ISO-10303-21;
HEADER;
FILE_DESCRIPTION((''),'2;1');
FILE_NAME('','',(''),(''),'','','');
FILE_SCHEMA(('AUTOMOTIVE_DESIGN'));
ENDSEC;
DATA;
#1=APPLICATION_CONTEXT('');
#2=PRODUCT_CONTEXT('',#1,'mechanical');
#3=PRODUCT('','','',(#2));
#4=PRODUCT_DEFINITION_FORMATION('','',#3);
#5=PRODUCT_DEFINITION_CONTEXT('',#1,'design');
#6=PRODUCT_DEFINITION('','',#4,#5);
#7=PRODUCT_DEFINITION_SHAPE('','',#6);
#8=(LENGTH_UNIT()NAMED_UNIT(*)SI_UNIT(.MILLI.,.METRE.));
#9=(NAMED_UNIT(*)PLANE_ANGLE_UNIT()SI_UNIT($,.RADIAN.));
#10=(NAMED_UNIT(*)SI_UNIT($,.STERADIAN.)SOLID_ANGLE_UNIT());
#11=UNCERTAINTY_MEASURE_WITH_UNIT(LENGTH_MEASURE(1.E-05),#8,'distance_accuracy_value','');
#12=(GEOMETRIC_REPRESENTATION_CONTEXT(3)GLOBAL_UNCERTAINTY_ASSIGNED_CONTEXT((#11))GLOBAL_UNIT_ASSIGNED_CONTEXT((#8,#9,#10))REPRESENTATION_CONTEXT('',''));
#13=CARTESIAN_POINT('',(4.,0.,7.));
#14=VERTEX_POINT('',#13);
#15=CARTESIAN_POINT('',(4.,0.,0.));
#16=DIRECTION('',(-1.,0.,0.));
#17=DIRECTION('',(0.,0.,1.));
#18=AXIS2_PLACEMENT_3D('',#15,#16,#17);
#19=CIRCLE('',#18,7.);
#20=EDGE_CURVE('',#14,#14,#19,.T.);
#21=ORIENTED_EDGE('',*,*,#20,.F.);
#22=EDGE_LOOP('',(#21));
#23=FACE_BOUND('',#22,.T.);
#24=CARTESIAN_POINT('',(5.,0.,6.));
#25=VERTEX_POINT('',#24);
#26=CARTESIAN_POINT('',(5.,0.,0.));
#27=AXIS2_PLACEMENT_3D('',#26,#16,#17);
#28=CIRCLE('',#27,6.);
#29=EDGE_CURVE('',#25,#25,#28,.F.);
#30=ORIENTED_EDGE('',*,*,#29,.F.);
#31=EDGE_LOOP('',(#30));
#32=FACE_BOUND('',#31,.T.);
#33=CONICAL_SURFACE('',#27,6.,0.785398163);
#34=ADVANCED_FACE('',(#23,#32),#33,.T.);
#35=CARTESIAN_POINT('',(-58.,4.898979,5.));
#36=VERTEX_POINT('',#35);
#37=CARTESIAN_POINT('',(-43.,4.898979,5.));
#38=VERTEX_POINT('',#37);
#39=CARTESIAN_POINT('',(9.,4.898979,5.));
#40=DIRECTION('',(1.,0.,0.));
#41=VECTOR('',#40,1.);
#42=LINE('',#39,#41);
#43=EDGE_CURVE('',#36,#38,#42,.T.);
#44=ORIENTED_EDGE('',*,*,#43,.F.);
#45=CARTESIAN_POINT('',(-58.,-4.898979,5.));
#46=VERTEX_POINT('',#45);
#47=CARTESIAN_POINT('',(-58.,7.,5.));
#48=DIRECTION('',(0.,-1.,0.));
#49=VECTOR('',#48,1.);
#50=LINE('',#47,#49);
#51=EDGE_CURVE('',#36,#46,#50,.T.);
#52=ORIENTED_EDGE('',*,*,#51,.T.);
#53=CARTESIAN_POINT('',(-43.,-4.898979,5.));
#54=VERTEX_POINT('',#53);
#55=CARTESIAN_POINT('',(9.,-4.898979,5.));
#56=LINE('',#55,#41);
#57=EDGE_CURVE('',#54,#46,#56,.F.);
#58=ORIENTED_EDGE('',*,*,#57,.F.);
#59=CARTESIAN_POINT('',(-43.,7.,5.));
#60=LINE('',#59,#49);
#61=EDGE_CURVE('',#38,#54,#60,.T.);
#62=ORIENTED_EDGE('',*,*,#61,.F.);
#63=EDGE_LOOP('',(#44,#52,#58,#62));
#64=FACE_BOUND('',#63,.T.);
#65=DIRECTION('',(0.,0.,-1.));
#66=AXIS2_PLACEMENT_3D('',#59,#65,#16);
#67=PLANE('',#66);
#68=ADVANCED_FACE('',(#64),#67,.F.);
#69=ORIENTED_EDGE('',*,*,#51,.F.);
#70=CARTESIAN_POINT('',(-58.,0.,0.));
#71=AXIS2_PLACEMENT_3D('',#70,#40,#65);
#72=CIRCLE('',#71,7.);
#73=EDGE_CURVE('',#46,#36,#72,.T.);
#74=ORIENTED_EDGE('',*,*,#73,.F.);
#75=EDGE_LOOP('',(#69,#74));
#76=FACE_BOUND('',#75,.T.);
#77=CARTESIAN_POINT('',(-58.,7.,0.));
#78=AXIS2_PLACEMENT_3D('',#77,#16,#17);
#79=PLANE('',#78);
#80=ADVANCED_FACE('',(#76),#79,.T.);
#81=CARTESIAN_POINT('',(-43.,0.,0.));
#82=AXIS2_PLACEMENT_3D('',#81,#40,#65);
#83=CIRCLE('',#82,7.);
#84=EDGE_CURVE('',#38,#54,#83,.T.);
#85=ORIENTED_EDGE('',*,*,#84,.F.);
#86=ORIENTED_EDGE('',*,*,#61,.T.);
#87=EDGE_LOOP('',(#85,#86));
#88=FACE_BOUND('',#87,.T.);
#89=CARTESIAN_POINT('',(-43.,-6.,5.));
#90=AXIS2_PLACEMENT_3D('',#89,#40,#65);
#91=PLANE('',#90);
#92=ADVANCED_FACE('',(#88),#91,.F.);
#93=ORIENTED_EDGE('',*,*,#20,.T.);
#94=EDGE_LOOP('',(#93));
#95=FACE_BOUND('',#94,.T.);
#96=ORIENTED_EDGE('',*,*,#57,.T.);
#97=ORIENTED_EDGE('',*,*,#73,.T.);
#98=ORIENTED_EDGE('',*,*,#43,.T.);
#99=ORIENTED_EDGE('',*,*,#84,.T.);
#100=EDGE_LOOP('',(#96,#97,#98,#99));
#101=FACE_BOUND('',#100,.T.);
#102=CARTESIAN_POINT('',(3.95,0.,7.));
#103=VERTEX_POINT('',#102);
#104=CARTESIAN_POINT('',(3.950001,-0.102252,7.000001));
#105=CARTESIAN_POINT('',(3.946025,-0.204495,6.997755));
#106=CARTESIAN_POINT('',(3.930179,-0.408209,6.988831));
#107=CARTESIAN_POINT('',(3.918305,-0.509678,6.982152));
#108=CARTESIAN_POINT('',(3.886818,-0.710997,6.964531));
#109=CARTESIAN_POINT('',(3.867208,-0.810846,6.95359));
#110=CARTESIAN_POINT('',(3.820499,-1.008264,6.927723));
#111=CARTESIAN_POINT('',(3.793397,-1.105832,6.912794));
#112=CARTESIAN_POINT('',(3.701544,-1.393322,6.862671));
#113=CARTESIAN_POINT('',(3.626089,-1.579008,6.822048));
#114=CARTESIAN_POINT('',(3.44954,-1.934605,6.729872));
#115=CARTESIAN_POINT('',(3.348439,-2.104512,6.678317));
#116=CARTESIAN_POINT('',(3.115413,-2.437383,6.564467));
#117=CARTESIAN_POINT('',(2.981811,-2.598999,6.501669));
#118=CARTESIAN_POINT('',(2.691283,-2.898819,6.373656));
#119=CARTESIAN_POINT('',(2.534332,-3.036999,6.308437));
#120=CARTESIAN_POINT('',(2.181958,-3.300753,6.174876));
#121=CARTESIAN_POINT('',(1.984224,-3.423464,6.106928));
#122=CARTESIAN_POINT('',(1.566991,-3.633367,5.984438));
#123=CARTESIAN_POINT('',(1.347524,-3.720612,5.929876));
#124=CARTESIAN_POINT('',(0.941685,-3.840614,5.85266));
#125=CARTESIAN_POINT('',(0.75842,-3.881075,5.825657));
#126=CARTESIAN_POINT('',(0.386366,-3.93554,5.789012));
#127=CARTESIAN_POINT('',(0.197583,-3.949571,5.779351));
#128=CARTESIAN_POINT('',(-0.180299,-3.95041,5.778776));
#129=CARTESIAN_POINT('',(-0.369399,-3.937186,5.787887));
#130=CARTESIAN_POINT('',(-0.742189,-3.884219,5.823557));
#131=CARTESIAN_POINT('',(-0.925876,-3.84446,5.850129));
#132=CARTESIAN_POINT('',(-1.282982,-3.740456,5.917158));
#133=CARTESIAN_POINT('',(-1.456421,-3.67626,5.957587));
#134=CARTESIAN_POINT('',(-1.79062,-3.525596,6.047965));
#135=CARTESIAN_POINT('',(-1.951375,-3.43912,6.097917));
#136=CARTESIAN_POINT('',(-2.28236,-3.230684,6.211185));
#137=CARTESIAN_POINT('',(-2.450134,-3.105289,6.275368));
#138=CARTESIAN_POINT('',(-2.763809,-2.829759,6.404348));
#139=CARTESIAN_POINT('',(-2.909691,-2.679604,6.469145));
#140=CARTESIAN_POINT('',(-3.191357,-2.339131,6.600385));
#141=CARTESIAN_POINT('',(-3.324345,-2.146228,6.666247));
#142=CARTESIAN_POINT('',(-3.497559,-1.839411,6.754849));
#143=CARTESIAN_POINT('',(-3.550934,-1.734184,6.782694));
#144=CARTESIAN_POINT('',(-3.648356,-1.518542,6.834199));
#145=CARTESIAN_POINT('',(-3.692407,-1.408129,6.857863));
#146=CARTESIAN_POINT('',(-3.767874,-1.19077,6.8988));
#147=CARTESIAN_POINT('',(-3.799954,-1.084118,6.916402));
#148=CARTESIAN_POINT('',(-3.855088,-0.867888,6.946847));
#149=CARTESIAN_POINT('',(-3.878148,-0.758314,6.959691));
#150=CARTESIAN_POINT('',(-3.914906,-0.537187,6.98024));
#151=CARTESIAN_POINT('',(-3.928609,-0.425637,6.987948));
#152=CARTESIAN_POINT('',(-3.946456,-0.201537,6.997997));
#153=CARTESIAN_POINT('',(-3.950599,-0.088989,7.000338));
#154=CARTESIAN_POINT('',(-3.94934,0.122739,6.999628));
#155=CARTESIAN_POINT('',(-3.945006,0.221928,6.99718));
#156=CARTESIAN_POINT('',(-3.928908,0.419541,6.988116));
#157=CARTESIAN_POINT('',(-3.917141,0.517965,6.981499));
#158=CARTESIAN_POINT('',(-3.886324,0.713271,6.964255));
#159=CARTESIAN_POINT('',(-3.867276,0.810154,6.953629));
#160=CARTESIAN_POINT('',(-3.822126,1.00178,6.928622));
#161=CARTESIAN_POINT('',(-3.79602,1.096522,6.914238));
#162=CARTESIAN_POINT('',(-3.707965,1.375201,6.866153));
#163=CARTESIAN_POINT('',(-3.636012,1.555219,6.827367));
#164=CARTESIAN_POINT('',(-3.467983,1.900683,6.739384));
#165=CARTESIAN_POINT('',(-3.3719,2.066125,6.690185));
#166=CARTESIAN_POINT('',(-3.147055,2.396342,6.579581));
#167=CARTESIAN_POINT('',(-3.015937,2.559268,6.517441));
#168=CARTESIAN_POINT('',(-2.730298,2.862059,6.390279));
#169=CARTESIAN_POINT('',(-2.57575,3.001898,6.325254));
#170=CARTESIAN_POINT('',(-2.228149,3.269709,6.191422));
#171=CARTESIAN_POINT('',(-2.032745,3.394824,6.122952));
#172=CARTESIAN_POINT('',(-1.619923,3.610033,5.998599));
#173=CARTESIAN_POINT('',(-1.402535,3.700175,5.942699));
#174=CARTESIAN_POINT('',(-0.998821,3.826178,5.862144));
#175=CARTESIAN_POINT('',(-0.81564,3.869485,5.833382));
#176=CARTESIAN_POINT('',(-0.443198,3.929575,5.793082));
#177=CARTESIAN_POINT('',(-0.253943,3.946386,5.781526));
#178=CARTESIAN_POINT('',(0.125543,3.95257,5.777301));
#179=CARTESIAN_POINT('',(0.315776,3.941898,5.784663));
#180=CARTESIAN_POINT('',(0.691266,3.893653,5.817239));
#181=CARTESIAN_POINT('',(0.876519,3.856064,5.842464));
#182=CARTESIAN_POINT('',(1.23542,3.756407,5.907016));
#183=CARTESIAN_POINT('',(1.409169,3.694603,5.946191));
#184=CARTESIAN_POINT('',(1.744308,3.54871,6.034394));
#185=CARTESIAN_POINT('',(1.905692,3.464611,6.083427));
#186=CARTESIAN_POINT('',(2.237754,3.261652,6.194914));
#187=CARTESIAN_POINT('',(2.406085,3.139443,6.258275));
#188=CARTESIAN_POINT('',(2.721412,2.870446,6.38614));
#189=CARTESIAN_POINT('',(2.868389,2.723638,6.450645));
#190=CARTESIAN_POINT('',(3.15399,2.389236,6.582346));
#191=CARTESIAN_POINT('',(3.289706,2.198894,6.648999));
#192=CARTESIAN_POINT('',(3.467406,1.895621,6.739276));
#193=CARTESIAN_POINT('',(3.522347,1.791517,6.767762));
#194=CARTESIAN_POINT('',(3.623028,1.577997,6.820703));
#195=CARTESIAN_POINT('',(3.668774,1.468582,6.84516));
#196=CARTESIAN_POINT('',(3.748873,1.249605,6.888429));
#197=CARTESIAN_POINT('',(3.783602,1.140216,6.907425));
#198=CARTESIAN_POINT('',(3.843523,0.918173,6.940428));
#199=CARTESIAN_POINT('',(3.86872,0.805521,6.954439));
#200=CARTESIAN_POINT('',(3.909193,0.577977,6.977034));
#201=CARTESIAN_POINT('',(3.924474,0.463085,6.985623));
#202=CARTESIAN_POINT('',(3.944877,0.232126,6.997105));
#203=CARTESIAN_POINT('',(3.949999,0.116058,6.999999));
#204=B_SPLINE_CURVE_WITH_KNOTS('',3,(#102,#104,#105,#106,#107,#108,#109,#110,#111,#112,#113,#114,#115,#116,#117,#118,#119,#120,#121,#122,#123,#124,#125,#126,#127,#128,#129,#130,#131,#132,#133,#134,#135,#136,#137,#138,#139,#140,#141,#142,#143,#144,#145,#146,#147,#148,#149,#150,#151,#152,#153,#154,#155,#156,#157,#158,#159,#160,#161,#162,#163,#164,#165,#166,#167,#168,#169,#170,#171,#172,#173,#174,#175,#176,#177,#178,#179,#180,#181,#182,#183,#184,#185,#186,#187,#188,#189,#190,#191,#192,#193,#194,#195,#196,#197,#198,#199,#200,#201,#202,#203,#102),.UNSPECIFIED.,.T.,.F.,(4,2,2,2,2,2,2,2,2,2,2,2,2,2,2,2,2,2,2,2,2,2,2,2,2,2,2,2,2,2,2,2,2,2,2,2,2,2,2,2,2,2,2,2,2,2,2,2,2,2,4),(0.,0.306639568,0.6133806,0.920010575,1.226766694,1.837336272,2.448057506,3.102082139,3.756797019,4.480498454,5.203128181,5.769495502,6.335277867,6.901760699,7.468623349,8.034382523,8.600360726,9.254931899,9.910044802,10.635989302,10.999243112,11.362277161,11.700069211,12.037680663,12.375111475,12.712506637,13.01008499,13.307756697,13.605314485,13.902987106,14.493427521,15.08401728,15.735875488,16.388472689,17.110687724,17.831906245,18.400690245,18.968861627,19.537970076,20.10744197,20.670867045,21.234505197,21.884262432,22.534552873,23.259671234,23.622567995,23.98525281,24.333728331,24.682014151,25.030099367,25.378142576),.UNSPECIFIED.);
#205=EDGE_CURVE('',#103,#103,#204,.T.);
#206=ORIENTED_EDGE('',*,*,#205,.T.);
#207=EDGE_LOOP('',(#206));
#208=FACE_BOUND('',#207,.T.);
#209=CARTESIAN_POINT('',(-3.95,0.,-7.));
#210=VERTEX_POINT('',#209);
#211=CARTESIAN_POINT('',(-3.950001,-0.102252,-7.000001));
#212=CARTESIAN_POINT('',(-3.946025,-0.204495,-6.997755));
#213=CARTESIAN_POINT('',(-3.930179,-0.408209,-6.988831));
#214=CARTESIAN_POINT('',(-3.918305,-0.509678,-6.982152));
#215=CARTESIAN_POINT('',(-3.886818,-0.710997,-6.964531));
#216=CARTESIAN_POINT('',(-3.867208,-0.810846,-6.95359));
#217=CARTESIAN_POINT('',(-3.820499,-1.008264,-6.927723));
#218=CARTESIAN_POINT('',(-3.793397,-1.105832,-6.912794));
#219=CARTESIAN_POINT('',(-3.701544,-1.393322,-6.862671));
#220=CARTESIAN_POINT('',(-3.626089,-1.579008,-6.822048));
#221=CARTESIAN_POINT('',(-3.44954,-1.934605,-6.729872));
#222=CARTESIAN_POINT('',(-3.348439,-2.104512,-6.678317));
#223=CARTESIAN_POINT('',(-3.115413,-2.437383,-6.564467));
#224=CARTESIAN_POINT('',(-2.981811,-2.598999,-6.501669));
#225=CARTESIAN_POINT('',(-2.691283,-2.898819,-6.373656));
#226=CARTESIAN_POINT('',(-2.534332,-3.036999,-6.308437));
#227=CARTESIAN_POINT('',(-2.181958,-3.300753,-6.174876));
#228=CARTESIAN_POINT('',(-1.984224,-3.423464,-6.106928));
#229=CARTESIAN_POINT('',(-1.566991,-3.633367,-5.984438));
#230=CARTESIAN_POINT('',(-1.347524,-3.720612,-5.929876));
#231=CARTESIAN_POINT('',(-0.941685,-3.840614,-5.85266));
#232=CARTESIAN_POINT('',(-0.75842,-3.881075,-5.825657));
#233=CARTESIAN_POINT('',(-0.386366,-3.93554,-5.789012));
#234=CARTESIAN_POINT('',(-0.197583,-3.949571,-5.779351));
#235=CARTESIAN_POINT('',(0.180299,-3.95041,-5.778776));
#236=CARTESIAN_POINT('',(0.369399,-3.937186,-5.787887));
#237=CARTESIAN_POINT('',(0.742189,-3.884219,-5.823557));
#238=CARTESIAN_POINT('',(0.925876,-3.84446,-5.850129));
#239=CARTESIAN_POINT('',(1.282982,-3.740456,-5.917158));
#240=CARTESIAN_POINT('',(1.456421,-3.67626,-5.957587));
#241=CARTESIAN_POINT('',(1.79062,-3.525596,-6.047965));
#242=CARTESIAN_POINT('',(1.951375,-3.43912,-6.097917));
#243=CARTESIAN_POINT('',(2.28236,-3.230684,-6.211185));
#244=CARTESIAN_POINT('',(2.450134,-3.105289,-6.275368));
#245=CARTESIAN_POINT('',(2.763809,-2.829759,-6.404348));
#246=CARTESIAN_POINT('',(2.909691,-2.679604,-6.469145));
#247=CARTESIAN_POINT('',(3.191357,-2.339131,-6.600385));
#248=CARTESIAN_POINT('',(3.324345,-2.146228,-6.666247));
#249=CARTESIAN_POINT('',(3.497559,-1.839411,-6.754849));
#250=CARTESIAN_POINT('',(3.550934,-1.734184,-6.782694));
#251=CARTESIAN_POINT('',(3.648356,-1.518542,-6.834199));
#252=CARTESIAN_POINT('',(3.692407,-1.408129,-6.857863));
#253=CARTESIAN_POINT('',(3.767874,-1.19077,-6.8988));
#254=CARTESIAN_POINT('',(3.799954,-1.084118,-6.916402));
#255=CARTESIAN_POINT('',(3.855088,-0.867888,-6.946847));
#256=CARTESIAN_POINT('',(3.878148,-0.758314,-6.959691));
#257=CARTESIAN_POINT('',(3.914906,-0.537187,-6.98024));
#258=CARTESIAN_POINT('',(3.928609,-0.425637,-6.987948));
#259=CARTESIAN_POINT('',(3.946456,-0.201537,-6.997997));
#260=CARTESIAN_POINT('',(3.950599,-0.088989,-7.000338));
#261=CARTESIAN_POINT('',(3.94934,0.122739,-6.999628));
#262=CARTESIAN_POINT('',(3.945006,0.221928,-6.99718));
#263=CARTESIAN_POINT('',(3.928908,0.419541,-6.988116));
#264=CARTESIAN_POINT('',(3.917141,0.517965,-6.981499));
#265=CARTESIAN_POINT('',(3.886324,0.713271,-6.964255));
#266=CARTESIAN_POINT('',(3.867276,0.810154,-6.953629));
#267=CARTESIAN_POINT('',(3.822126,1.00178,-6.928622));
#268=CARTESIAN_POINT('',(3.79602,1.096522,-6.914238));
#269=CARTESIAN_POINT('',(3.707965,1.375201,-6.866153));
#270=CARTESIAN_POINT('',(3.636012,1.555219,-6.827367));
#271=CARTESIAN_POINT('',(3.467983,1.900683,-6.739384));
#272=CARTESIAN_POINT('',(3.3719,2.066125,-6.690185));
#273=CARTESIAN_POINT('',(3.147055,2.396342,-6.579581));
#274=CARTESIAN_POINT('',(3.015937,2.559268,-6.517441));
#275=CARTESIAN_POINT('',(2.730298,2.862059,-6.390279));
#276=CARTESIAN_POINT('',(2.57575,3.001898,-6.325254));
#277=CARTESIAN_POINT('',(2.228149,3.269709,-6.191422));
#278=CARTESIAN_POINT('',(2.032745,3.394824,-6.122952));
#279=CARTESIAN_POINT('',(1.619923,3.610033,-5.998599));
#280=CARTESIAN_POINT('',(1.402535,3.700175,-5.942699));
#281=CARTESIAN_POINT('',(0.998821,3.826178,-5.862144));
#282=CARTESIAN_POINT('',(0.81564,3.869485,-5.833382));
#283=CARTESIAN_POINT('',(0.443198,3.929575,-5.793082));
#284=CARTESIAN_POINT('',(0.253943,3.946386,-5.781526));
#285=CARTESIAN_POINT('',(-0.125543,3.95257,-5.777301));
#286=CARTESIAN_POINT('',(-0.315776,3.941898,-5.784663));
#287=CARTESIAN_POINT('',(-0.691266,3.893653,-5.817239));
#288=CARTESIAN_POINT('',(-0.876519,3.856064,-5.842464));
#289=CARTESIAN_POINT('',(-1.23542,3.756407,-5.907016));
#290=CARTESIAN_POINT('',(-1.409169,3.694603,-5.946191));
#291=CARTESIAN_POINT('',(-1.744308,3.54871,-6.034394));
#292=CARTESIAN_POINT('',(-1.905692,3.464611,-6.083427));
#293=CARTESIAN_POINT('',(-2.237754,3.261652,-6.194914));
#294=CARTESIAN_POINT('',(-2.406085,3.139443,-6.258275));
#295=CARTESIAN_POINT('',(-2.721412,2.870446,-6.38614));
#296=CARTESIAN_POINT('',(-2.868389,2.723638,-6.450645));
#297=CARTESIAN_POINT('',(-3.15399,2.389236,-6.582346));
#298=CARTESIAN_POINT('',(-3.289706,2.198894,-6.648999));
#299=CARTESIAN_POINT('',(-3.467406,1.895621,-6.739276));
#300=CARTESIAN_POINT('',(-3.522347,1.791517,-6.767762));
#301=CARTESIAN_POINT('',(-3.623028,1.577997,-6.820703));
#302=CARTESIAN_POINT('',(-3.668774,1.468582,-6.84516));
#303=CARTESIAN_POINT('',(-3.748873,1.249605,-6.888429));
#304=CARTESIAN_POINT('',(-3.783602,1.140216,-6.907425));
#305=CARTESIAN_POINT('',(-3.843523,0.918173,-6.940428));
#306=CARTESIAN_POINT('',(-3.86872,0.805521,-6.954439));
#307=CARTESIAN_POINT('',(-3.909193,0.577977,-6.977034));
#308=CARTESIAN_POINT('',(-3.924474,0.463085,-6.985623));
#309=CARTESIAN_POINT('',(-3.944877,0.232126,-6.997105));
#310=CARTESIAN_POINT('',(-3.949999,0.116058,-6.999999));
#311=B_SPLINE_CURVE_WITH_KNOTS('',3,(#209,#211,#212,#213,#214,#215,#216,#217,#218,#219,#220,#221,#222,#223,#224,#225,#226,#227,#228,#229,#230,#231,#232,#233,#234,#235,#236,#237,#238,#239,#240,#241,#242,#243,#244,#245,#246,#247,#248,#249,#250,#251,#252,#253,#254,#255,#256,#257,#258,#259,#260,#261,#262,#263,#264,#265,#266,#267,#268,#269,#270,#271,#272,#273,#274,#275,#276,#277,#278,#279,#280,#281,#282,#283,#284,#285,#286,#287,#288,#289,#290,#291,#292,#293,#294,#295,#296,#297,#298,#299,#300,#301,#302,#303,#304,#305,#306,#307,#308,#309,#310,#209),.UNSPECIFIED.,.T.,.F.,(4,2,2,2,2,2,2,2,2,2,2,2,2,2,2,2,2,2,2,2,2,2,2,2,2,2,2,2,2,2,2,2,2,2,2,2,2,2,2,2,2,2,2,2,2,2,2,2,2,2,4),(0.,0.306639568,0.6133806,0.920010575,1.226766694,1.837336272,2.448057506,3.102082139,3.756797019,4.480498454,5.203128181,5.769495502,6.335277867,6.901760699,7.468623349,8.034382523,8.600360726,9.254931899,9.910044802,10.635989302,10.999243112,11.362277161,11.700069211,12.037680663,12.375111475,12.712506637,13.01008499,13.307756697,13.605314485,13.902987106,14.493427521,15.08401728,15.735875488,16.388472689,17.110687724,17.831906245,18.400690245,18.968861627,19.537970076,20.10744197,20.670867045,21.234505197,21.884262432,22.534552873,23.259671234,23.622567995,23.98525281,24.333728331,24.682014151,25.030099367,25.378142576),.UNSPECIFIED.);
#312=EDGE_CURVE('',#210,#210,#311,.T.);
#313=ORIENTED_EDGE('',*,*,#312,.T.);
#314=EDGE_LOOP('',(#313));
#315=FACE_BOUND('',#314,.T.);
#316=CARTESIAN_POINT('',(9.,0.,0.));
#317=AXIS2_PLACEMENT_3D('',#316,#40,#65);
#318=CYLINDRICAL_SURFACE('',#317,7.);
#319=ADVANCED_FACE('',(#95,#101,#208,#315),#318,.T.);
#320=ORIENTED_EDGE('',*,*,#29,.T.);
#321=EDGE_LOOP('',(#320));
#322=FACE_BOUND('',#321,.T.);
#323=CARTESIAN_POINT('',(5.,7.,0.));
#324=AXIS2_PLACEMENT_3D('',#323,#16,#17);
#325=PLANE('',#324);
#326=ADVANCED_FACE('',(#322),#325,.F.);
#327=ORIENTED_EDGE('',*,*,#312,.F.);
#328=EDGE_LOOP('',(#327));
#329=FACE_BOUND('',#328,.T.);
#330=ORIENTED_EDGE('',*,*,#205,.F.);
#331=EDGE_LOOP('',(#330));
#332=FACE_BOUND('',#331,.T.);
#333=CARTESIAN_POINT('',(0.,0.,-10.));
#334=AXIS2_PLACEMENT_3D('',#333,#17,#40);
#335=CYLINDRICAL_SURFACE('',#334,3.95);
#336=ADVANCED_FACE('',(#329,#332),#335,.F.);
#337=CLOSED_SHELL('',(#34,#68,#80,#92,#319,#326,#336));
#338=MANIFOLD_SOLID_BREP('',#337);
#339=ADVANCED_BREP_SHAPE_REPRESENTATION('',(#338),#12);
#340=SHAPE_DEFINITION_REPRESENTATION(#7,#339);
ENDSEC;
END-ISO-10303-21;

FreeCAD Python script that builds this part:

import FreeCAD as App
import Part
import Sketcher
from FreeCAD import Vector
Q = App.Units.Quantity


def edges_at(feature, points):
    """Names of the edges that pass closest to the given points."""
    edges = feature.Shape.Edges
    near = lambda p: min(range(len(edges)), key=lambda i: edges[i].distToShape(Part.Vertex(*p))[0])
    return sorted({f"Edge{near(p) + 1}" for p in points})

doc = App.newDocument("Part")
body = doc.addObject("PartDesign::Body", "Body")

# Sketch on XY plane
sketch1 = body.newObject("Sketcher::SketchObject", "Sketch")
sketch1.AttachmentSupport = (doc.getObject("XY_Plane"), [""])
sketch1.MapMode = "FlatFace"
sketch1.addGeometry([
    Part.LineSegment(Vector(-58, 7, 0), Vector(-58, 0, 0)),
    Part.LineSegment(Vector(-58, 0, 0), Vector(5, 0, 0)),
    Part.LineSegment(Vector(5, 0, 0), Vector(5, 7, 0)),
    Part.LineSegment(Vector(5, 7, 0), Vector(-58, 7, 0)),
], False)
sketch1.addConstraint([
    Sketcher.Constraint("Coincident", 0, 2, 1, 1),
    Sketcher.Constraint("Coincident", 1, 2, 2, 1),
    Sketcher.Constraint("Coincident", 2, 2, 3, 1),
    Sketcher.Constraint("Coincident", 3, 2, 0, 1),
    Sketcher.Constraint("Vertical", 0),
    Sketcher.Constraint("Horizontal", 1),
    Sketcher.Constraint("Vertical", 2),
    Sketcher.Constraint("Horizontal", 3),
    Sketcher.Constraint("PointOnObject", 0, 2, -1),
    Sketcher.Constraint("DistanceX", 1, 1, 1, 2, Q("63 mm")),
    Sketcher.Constraint("DistanceY", 0, 2, 0, 1, Q("7 mm")),
    Sketcher.Constraint("DistanceX", 0, 2, -1, 1, Q("58 mm")),
])
revolution = body.newObject("PartDesign::Revolution", "Revolution")
revolution.Profile = sketch1
revolution.ReferenceAxis = (sketch1, ["H_Axis"])
revolution.Angle = 360
doc.recompute()

chamfer = body.newObject("PartDesign::Chamfer", "Chamfer")
chamfer.Base = (revolution, edges_at(revolution, [(5, -4.899, -5)]))
chamfer.Size = 1

# Sketch on XY plane
sketch2 = body.newObject("Sketcher::SketchObject", "Sketch001")
sketch2.AttachmentSupport = (doc.getObject("XY_Plane"), [""])
sketch2.MapMode = "FlatFace"
sketch2.addGeometry(Part.Circle(Vector(0, 0, 0), Vector(0, 0, 1), 4), False)
sketch2.addConstraint([
    Sketcher.Constraint("Coincident", 0, 3, -1, 1),
    Sketcher.Constraint("Diameter", 0, Q("7.9 mm")),
])
pocket1 = body.newObject("PartDesign::Pocket", "Pocket")
pocket1.Profile = sketch2
pocket1.Type = "ThroughAll"
pocket1.Midplane = True

# Sketch on YZ plane
sketch3 = body.newObject("Sketcher::SketchObject", "Sketch002")
sketch3.AttachmentSupport = (doc.getObject("YZ_Plane"), [""])
sketch3.MapMode = "FlatFace"
sketch3.AttachmentOffset = App.Placement(Vector(0, 0, -58), App.Rotation())
sketch3.addGeometry([
    Part.LineSegment(Vector(7, 5, 0), Vector(-6, 5, 0)),
    Part.LineSegment(Vector(-6, 5, 0), Vector(-6, 8, 0)),
    Part.LineSegment(Vector(-6, 8, 0), Vector(7, 8, 0)),
    Part.LineSegment(Vector(7, 8, 0), Vector(7, 5, 0)),
], False)
sketch3.addConstraint([
    Sketcher.Constraint("Coincident", 0, 2, 1, 1),
    Sketcher.Constraint("Coincident", 1, 2, 2, 1),
    Sketcher.Constraint("Coincident", 2, 2, 3, 1),
    Sketcher.Constraint("Coincident", 3, 2, 0, 1),
    Sketcher.Constraint("Horizontal", 0),
    Sketcher.Constraint("Vertical", 1),
    Sketcher.Constraint("Horizontal", 2),
    Sketcher.Constraint("Vertical", 3),
    Sketcher.Constraint("DistanceX", 0, 2, 0, 1, Q("13 mm")),
    Sketcher.Constraint("DistanceY", 1, 1, 1, 2, Q("3 mm")),
    Sketcher.Constraint("DistanceX", 0, 2, -1, 1, Q("6 mm")),
    Sketcher.Constraint("DistanceY", -1, 1, 0, 2, Q("5 mm")),
])
pocket2 = body.newObject("PartDesign::Pocket", "Pocket001")
pocket2.Profile = sketch3
pocket2.Length = 15
pocket2.Reversed = True

doc.recompute()
